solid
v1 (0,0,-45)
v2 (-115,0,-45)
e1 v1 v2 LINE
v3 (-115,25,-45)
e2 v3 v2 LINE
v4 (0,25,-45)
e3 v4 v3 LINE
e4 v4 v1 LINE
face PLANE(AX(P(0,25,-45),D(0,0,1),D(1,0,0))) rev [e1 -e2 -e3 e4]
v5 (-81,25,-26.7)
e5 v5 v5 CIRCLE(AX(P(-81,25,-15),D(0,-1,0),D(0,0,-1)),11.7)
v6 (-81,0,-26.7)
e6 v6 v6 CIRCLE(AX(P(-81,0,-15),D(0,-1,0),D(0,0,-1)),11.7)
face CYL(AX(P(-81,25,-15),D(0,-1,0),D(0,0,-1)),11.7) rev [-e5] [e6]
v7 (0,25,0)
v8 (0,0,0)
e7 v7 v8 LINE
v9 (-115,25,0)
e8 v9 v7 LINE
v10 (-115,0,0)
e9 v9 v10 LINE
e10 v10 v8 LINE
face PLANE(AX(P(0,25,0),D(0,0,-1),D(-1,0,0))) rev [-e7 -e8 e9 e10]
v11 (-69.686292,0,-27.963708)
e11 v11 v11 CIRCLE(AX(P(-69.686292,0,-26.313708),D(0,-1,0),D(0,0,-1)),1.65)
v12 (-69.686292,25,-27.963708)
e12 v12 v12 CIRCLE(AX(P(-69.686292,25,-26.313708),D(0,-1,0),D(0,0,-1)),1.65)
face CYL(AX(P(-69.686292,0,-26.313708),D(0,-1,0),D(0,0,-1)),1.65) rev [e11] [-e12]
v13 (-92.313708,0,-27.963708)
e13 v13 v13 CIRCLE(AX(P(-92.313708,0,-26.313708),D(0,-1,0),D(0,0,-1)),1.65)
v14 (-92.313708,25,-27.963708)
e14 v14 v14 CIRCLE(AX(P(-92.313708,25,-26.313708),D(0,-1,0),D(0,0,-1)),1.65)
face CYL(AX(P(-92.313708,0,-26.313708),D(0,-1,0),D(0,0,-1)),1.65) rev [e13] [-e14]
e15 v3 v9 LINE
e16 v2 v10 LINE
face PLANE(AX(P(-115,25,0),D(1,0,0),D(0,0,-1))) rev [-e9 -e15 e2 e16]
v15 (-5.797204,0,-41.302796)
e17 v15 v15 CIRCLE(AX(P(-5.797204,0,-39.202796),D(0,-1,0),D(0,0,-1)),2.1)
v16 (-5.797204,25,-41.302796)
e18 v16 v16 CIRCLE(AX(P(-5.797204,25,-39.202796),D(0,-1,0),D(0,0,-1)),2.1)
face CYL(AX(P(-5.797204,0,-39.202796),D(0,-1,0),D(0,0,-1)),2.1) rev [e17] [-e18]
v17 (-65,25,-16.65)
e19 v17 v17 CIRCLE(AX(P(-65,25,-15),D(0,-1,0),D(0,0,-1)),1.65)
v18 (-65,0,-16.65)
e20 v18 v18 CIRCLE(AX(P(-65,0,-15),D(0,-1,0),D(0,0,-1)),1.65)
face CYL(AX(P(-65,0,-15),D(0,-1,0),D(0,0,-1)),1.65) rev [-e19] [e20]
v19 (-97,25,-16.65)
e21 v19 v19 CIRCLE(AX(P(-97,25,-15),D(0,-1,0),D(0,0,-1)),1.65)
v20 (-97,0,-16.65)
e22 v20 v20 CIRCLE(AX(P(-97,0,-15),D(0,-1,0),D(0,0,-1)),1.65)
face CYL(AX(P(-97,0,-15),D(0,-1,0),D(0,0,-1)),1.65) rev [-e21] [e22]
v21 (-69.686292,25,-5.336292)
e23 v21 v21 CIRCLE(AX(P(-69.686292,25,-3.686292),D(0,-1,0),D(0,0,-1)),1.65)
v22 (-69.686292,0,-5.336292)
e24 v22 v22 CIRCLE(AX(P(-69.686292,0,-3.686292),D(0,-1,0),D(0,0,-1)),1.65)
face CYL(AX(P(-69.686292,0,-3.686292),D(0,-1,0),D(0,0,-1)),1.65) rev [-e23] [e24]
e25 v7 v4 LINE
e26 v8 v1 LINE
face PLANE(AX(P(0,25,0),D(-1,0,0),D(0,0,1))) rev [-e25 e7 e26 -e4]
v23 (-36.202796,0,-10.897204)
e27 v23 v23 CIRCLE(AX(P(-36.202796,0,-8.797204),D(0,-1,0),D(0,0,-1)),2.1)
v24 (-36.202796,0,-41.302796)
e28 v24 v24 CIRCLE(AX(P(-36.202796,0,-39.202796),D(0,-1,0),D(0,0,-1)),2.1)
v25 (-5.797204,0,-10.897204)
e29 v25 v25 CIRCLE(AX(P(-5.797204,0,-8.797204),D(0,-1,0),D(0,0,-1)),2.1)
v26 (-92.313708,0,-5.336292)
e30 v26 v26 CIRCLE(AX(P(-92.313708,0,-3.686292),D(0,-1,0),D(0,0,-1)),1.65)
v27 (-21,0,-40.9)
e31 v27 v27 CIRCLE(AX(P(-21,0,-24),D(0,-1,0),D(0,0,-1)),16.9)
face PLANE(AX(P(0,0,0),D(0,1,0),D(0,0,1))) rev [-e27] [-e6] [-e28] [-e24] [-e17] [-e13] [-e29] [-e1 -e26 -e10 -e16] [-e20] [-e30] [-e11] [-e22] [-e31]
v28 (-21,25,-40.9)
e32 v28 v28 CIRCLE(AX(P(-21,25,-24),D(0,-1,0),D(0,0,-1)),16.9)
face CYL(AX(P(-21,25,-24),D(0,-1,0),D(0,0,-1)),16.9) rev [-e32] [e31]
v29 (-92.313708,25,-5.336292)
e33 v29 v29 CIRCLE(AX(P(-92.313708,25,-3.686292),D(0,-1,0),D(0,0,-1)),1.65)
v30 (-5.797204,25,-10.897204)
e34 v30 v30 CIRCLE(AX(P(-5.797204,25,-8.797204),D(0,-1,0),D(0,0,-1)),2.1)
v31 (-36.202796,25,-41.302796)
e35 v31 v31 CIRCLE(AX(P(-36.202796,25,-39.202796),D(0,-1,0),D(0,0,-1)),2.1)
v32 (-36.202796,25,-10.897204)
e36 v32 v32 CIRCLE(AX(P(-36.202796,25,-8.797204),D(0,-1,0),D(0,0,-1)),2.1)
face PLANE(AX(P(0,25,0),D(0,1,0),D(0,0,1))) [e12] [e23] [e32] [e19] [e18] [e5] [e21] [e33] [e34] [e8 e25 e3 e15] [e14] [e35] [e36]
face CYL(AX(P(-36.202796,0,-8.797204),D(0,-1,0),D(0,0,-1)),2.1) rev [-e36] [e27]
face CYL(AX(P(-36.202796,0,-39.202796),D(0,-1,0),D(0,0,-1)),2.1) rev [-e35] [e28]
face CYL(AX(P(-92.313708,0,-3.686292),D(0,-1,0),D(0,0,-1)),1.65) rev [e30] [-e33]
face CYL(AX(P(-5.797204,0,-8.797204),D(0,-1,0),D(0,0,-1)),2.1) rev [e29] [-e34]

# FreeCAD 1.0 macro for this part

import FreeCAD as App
import Part
import Sketcher

V = App.Vector
Q = App.Units.Quantity


def add_polygon(sketch, points):
    """Adds a closed chain of lines whose ends are joined by coincident constraints."""
    first, n = sketch.GeometryCount, len(points)
    for a, b in zip(points, points[1:] + points[:1]):
        sketch.addGeometry(Part.LineSegment(App.Vector(*a, 0), App.Vector(*b, 0)), False)
    for i in range(n):
        sketch.addConstraint(Sketcher.Constraint("Coincident", first + i, 2, first + (i + 1) % n, 1))

doc = App.newDocument("Part")
body = doc.addObject("PartDesign::Body", "Body")

# Sketch on XZ plane
sketch1 = body.newObject("Sketcher::SketchObject", "Sketch")
sketch1.AttachmentSupport = (doc.getObject("XZ_Plane"), [""])
sketch1.MapMode = "FlatFace"
add_polygon(sketch1, [(-115, -45), (-115, 0), (0, 0), (0, -45)])  # lines 0-3
sketch1.addConstraint([
    Sketcher.Constraint("Vertical", 0),
    Sketcher.Constraint("Horizontal", 1),
    Sketcher.Constraint("Vertical", 2),
    Sketcher.Constraint("Horizontal", 3),
    Sketcher.Constraint("Coincident", 1, 2, -1, 1),
    Sketcher.Constraint("DistanceX", 1, 1, 1, 2, Q("115 mm")),
    Sketcher.Constraint("DistanceY", 0, 1, 0, 2, Q("45 mm")),
])
pad1 = body.newObject("PartDesign::Pad", "Pad")
pad1.Profile = sketch1
pad1.Length = 25
pad1.Reversed = True

# Sketch on XZ plane
sketch2 = body.newObject("Sketcher::SketchObject", "Sketch001")
sketch2.AttachmentSupport = (doc.getObject("XZ_Plane"), [""])
sketch2.MapMode = "FlatFace"
sketch2.addGeometry([
    Part.Circle(V(-81, -15, 0), V(0, 0, 1), 12),
    Part.Circle(V(-21, -24, 0), V(0, 0, 1), 17),
], False)
sketch2.addConstraint([
    Sketcher.Constraint("Diameter", 0, Q("23.4 mm")),
    Sketcher.Constraint("Diameter", 1, Q("33.8 mm")),
    Sketcher.Constraint("DistanceX", 0, 3, -1, 1, Q("81 mm")),
    Sketcher.Constraint("DistanceY", 0, 3, -1, 1, Q("15 mm")),
    Sketcher.Constraint("DistanceX", 1, 3, -1, 1, Q("21 mm")),
    Sketcher.Constraint("DistanceY", 1, 3, -1, 1, Q("24 mm")),
])
pocket1 = body.newObject("PartDesign::Pocket", "Pocket")
pocket1.Profile = sketch2
pocket1.Type = "ThroughAll"

# Sketch on XZ plane
sketch3 = body.newObject("Sketcher::SketchObject", "Sketch002")
sketch3.AttachmentSupport = (doc.getObject("XZ_Plane"), [""])
sketch3.MapMode = "FlatFace"
sketch3.addGeometry([
    Part.Circle(V(-36.2, -39.2, 0), V(0, 0, 1), 2.1),
    Part.Circle(V(-5.8, -39.2, 0), V(0, 0, 1), 2.1),
    Part.Circle(V(-5.8, -8.8, 0), V(0, 0, 1), 2.1),
    Part.Circle(V(-36.2, -8.8, 0), V(0, 0, 1), 2.1),
], False)
sketch3.addConstraint([
    Sketcher.Constraint("Equal", 0, 1),
    Sketcher.Constraint("Equal", 1, 2),
    Sketcher.Constraint("Equal", 2, 3),
    Sketcher.Constraint("Horizontal", 0, 3, 1, 3),
    Sketcher.Constraint("Horizontal", 2, 3, 3, 3),
    Sketcher.Constraint("Vertical", 1, 3, 2, 3),
    Sketcher.Constraint("Vertical", 0, 3, 3, 3),
    Sketcher.Constraint("Diameter", 0, Q("4.2 mm")),
    Sketcher.Constraint("DistanceX", 0, 3, 1, 3, Q("30.405592 mm")),
    Sketcher.Constraint("DistanceY", 1, 3, 2, 3, Q("30.405592 mm")),
    Sketcher.Constraint("DistanceX", 0, 3, -1, 1, Q("36.202796 mm")),
    Sketcher.Constraint("DistanceY", 0, 3, -1, 1, Q("39.202796 mm")),
])
doc.recompute()
hole = body.newObject("PartDesign::Hole", "Hole")
hole.Profile = sketch3
hole.ThreadType = "None"
hole.Diameter = 4.2
hole.DepthType = "ThroughAll"

# Sketch on XZ plane
sketch4 = body.newObject("Sketcher::SketchObject", "Sketch003")
sketch4.AttachmentSupport = (doc.getObject("XZ_Plane"), [""])
sketch4.MapMode = "FlatFace"
sketch4.addGeometry([
    Part.Circle(V(-92.3, -3.7, 0), V(0, 0, 1), 1.6),  # 0
    Part.Circle(V(-97, -15, 0), V(0, 0, 1), 1.6),  # 1
    Part.Circle(V(-92.3, -26.3, 0), V(0, 0, 1), 1.6),  # 2
    Part.Circle(V(-69.7, -26.3, 0), V(0, 0, 1), 1.6),  # 3
    Part.Circle(V(-65, -15, 0), V(0, 0, 1), 1.6),  # 4
    Part.Circle(V(-69.7, -3.7, 0), V(0, 0, 1), 1.6),  # 5
], False)
sketch4.addConstraint([
    Sketcher.Constraint("Equal", 0, 1),
    Sketcher.Constraint("Equal", 1, 2),
    Sketcher.Constraint("Equal", 2, 3),
    Sketcher.Constraint("Equal", 3, 4),
    Sketcher.Constraint("Equal", 4, 5),
    Sketcher.Constraint("Horizontal", 2, 3, 3, 3),
    Sketcher.Constraint("Horizontal", 1, 3, 4, 3),
    Sketcher.Constraint("Horizontal", 0, 3, 5, 3),
    Sketcher.Constraint("Vertical", 0, 3, 2, 3),
    Sketcher.Constraint("Vertical", 3, 3, 5, 3),
    Sketcher.Constraint("Diameter", 0, Q("3.3 mm")),
    Sketcher.Constraint("DistanceX", 1, 3, -1, 1, Q("97 mm")),
    Sketcher.Constraint("DistanceY", 1, 3, -1, 1, Q("15 mm")),
    Sketcher.Constraint("DistanceX", 4, 3, -1, 1, Q("65 mm")),
    Sketcher.Constraint("DistanceX", 0, 3, -1, 1, Q("92.313708 mm")),
    Sketcher.Constraint("DistanceY", 0, 3, -1, 1, Q("3.686292 mm")),
    Sketcher.Constraint("DistanceY", 2, 3, -1, 1, Q("26.313708 mm")),
    Sketcher.Constraint("DistanceX", 3, 3, -1, 1, Q("69.686292 mm")),
])
doc.recompute()
hole2 = body.newObject("PartDesign::Hole", "Hole001")
hole2.Profile = sketch4
hole2.ThreadType = "None"
hole2.Diameter = 3.3
hole2.DepthType = "ThroughAll"

doc.recompute()
